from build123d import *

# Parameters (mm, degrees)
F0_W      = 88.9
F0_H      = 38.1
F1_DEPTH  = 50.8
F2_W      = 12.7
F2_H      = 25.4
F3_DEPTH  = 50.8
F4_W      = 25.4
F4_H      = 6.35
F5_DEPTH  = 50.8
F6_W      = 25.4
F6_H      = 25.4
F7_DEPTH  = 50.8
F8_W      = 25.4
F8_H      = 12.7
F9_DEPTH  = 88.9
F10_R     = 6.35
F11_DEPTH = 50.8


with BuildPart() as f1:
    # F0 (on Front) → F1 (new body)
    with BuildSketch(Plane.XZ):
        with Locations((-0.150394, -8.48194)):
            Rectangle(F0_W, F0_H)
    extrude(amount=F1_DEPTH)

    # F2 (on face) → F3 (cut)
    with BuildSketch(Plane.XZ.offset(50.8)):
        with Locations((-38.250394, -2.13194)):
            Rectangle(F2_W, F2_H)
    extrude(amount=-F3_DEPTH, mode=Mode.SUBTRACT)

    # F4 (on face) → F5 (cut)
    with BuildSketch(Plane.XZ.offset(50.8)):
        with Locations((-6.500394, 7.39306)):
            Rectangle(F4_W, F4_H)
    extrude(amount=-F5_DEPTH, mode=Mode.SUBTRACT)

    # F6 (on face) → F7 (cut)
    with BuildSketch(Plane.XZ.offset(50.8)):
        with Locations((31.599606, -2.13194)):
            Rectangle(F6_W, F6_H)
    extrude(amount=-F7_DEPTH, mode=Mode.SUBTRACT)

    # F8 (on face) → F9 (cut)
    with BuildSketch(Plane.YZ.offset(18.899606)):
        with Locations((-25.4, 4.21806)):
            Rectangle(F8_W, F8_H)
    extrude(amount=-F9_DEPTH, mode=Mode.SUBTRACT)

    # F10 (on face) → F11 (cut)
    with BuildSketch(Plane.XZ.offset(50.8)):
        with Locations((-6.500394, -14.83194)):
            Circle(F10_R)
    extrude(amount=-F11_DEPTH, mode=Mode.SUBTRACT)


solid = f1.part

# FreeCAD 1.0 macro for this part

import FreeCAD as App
import Part
import Sketcher
Q = App.Units.Quantity


def add_polygon(sketch, points):
    """Adds a closed chain of lines whose ends are joined by coincident constraints."""
    first, n = sketch.GeometryCount, len(points)
    for a, b in zip(points, points[1:] + points[:1]):
        sketch.addGeometry(Part.LineSegment(App.Vector(*a, 0), App.Vector(*b, 0)), False)
    for i in range(n):
        sketch.addConstraint(Sketcher.Constraint("Coincident", first + i, 2, first + (i + 1) % n, 1))

doc = App.newDocument("Part")
body = doc.addObject("PartDesign::Body", "Body")

sketch1 = doc.addObject("Sketcher::SketchObject", "Sketch")
body.addObject(sketch1)
sketch1.AttachmentSupport = (doc.XZ_Plane, [""])
sketch1.MapMode = "FlatFace"
add_polygon(sketch1, [(-44.600394, 10.56806), (-44.600394, -27.53194), (44.299606, -27.53194), (44.299606, 10.56806)])
sketch1.addConstraint([
    Sketcher.Constraint("Vertical", 0),
    Sketcher.Constraint("Horizontal", 1),
    Sketcher.Constraint("Vertical", 2),
    Sketcher.Constraint("Horizontal", 3),
    Sketcher.Constraint("DistanceX", 1, 1, 1, 2, Q("3.5 in")),
    Sketcher.Constraint("DistanceY", 0, 2, 0, 1, Q("1.5 in")),
    Sketcher.Constraint("DistanceY", 0, 2, -1, 1, 27.53194),
    Sketcher.Constraint("DistanceX", 0, 2, -1, 1, 44.600394),
])
pad1 = doc.addObject("PartDesign::Pad", "Pad")
body.addObject(pad1)
pad1.Profile = sketch1
pad1.Length = Q("2 in")

sketch2 = doc.addObject("Sketcher::SketchObject", "Sketch001")
body.addObject(sketch2)
sketch2.AttachmentSupport = (doc.XZ_Plane, [""])
sketch2.MapMode = "FlatFace"
sketch2.AttachmentOffset = App.Placement(App.Vector(0, 0, 2 * 25.4), App.Rotation())
add_polygon(sketch2, [(-44.600394, 10.56806), (-44.600394, -14.83194), (-31.900394, -14.83194), (-31.900394, 10.56806)])
sketch2.addConstraint([
    Sketcher.Constraint("Vertical", 0),
    Sketcher.Constraint("Horizontal", 1),
    Sketcher.Constraint("Vertical", 2),
    Sketcher.Constraint("Horizontal", 3),
    Sketcher.Constraint("DistanceY", 0, 2, 0, 1, Q("1 in")),
    Sketcher.Constraint("DistanceX", 1, 1, 1, 2, Q("0.5 in")),
    Sketcher.Constraint("DistanceY", 0, 2, -1, 1, 14.83194),
    Sketcher.Constraint("DistanceX", 0, 2, -1, 1, 44.600394),
])
pocket1 = doc.addObject("PartDesign::Pocket", "Pocket")
body.addObject(pocket1)
pocket1.Profile = sketch2
pocket1.Length = Q("2 in")

sketch3 = doc.addObject("Sketcher::SketchObject", "Sketch002")
body.addObject(sketch3)
sketch3.AttachmentSupport = (doc.XZ_Plane, [""])
sketch3.MapMode = "FlatFace"
sketch3.AttachmentOffset = App.Placement(App.Vector(0, 0, 2 * 25.4), App.Rotation())
add_polygon(sketch3, [(-19.200394, 10.56806), (-19.200394, 4.21806), (6.199606, 4.21806), (6.199606, 10.56806)])
sketch3.addConstraint([
    Sketcher.Constraint("Vertical", 0),
    Sketcher.Constraint("Horizontal", 1),
    Sketcher.Constraint("Vertical", 2),
    Sketcher.Constraint("Horizontal", 3),
    Sketcher.Constraint("DistanceX", 1, 1, 1, 2, Q("1 in")),
    Sketcher.Constraint("DistanceY", 0, 2, 0, 1, Q("0.25 in")),
    Sketcher.Constraint("DistanceY", -1, 1, 0, 2, 4.21806),
    Sketcher.Constraint("DistanceX", 0, 2, -1, 1, 19.200394),
])
pocket2 = doc.addObject("PartDesign::Pocket", "Pocket001")
body.addObject(pocket2)
pocket2.Profile = sketch3
pocket2.Length = Q("2 in")

sketch4 = doc.addObject("Sketcher::SketchObject", "Sketch003")
body.addObject(sketch4)
sketch4.AttachmentSupport = (doc.XZ_Plane, [""])
sketch4.MapMode = "FlatFace"
sketch4.AttachmentOffset = App.Placement(App.Vector(0, 0, 2 * 25.4), App.Rotation())
add_polygon(sketch4, [(18.899606, 10.56806), (18.899606, -14.83194), (44.299606, -14.83194), (44.299606, 10.56806)])
sketch4.addConstraint([
    Sketcher.Constraint("Vertical", 0),
    Sketcher.Constraint("Horizontal", 1),
    Sketcher.Constraint("Vertical", 2),
    Sketcher.Constraint("Horizontal", 3),
    Sketcher.Constraint("Equal", 3, 0),
    Sketcher.Constraint("DistanceX", 1, 1, 1, 2, Q("1 in")),
    Sketcher.Constraint("DistanceY", 0, 2, -1, 1, 14.83194),
    Sketcher.Constraint("DistanceX", -1, 1, 0, 2, 18.899606),
])
pocket3 = doc.addObject("PartDesign::Pocket", "Pocket002")
body.addObject(pocket3)
pocket3.Profile = sketch4
pocket3.Length = Q("2 in")

sketch5 = doc.addObject("Sketcher::SketchObject", "Sketch004")
body.addObject(sketch5)
sketch5.AttachmentSupport = (doc.YZ_Plane, [""])
sketch5.MapMode = "FlatFace"
sketch5.AttachmentOffset = App.Placement(App.Vector(0, 0, 18.899606), App.Rotation())
add_polygon(sketch5, [(-38.1, 10.56806), (-38.1, -2.13194), (-12.7, -2.13194), (-12.7, 10.56806)])
sketch5.addConstraint([
    Sketcher.Constraint("Vertical", 0),
    Sketcher.Constraint("Horizontal", 1),
    Sketcher.Constraint("Vertical", 2),
    Sketcher.Constraint("Horizontal", 3),
    Sketcher.Constraint("DistanceX", 1, 1, 1, 2, Q("1 in")),
    Sketcher.Constraint("DistanceY", 0, 2, 0, 1, Q("0.5 in")),
    Sketcher.Constraint("DistanceX", 0, 2, -1, 1, Q("1.5 in")),
    Sketcher.Constraint("DistanceY", 0, 2, -1, 1, 2.13194),
])
pocket4 = doc.addObject("PartDesign::Pocket", "Pocket003")
body.addObject(pocket4)
pocket4.Profile = sketch5
pocket4.Length = Q("3.5 in")

sketch6 = doc.addObject("Sketcher::SketchObject", "Sketch005")
body.addObject(sketch6)
sketch6.AttachmentSupport = (doc.XZ_Plane, [""])
sketch6.MapMode = "FlatFace"
sketch6.AttachmentOffset = App.Placement(App.Vector(0, 0, 2 * 25.4), App.Rotation())
sketch6.addGeometry(Part.Circle(App.Vector(-6.500394, -14.83194, 0), App.Vector(0, 0, 1), 6.35), False)
sketch6.addConstraint([
    Sketcher.Constraint("Diameter", 0, Q("0.5 in")),
    Sketcher.Constraint("DistanceY", 0, 3, -1, 1, 14.83194),
    Sketcher.Constraint("DistanceX", 0, 3, -1, 1, 6.500394),
])
pocket5 = doc.addObject("PartDesign::Pocket", "Pocket004")
body.addObject(pocket5)
pocket5.Profile = sketch6
pocket5.Length = Q("2 in")

doc.recompute()
